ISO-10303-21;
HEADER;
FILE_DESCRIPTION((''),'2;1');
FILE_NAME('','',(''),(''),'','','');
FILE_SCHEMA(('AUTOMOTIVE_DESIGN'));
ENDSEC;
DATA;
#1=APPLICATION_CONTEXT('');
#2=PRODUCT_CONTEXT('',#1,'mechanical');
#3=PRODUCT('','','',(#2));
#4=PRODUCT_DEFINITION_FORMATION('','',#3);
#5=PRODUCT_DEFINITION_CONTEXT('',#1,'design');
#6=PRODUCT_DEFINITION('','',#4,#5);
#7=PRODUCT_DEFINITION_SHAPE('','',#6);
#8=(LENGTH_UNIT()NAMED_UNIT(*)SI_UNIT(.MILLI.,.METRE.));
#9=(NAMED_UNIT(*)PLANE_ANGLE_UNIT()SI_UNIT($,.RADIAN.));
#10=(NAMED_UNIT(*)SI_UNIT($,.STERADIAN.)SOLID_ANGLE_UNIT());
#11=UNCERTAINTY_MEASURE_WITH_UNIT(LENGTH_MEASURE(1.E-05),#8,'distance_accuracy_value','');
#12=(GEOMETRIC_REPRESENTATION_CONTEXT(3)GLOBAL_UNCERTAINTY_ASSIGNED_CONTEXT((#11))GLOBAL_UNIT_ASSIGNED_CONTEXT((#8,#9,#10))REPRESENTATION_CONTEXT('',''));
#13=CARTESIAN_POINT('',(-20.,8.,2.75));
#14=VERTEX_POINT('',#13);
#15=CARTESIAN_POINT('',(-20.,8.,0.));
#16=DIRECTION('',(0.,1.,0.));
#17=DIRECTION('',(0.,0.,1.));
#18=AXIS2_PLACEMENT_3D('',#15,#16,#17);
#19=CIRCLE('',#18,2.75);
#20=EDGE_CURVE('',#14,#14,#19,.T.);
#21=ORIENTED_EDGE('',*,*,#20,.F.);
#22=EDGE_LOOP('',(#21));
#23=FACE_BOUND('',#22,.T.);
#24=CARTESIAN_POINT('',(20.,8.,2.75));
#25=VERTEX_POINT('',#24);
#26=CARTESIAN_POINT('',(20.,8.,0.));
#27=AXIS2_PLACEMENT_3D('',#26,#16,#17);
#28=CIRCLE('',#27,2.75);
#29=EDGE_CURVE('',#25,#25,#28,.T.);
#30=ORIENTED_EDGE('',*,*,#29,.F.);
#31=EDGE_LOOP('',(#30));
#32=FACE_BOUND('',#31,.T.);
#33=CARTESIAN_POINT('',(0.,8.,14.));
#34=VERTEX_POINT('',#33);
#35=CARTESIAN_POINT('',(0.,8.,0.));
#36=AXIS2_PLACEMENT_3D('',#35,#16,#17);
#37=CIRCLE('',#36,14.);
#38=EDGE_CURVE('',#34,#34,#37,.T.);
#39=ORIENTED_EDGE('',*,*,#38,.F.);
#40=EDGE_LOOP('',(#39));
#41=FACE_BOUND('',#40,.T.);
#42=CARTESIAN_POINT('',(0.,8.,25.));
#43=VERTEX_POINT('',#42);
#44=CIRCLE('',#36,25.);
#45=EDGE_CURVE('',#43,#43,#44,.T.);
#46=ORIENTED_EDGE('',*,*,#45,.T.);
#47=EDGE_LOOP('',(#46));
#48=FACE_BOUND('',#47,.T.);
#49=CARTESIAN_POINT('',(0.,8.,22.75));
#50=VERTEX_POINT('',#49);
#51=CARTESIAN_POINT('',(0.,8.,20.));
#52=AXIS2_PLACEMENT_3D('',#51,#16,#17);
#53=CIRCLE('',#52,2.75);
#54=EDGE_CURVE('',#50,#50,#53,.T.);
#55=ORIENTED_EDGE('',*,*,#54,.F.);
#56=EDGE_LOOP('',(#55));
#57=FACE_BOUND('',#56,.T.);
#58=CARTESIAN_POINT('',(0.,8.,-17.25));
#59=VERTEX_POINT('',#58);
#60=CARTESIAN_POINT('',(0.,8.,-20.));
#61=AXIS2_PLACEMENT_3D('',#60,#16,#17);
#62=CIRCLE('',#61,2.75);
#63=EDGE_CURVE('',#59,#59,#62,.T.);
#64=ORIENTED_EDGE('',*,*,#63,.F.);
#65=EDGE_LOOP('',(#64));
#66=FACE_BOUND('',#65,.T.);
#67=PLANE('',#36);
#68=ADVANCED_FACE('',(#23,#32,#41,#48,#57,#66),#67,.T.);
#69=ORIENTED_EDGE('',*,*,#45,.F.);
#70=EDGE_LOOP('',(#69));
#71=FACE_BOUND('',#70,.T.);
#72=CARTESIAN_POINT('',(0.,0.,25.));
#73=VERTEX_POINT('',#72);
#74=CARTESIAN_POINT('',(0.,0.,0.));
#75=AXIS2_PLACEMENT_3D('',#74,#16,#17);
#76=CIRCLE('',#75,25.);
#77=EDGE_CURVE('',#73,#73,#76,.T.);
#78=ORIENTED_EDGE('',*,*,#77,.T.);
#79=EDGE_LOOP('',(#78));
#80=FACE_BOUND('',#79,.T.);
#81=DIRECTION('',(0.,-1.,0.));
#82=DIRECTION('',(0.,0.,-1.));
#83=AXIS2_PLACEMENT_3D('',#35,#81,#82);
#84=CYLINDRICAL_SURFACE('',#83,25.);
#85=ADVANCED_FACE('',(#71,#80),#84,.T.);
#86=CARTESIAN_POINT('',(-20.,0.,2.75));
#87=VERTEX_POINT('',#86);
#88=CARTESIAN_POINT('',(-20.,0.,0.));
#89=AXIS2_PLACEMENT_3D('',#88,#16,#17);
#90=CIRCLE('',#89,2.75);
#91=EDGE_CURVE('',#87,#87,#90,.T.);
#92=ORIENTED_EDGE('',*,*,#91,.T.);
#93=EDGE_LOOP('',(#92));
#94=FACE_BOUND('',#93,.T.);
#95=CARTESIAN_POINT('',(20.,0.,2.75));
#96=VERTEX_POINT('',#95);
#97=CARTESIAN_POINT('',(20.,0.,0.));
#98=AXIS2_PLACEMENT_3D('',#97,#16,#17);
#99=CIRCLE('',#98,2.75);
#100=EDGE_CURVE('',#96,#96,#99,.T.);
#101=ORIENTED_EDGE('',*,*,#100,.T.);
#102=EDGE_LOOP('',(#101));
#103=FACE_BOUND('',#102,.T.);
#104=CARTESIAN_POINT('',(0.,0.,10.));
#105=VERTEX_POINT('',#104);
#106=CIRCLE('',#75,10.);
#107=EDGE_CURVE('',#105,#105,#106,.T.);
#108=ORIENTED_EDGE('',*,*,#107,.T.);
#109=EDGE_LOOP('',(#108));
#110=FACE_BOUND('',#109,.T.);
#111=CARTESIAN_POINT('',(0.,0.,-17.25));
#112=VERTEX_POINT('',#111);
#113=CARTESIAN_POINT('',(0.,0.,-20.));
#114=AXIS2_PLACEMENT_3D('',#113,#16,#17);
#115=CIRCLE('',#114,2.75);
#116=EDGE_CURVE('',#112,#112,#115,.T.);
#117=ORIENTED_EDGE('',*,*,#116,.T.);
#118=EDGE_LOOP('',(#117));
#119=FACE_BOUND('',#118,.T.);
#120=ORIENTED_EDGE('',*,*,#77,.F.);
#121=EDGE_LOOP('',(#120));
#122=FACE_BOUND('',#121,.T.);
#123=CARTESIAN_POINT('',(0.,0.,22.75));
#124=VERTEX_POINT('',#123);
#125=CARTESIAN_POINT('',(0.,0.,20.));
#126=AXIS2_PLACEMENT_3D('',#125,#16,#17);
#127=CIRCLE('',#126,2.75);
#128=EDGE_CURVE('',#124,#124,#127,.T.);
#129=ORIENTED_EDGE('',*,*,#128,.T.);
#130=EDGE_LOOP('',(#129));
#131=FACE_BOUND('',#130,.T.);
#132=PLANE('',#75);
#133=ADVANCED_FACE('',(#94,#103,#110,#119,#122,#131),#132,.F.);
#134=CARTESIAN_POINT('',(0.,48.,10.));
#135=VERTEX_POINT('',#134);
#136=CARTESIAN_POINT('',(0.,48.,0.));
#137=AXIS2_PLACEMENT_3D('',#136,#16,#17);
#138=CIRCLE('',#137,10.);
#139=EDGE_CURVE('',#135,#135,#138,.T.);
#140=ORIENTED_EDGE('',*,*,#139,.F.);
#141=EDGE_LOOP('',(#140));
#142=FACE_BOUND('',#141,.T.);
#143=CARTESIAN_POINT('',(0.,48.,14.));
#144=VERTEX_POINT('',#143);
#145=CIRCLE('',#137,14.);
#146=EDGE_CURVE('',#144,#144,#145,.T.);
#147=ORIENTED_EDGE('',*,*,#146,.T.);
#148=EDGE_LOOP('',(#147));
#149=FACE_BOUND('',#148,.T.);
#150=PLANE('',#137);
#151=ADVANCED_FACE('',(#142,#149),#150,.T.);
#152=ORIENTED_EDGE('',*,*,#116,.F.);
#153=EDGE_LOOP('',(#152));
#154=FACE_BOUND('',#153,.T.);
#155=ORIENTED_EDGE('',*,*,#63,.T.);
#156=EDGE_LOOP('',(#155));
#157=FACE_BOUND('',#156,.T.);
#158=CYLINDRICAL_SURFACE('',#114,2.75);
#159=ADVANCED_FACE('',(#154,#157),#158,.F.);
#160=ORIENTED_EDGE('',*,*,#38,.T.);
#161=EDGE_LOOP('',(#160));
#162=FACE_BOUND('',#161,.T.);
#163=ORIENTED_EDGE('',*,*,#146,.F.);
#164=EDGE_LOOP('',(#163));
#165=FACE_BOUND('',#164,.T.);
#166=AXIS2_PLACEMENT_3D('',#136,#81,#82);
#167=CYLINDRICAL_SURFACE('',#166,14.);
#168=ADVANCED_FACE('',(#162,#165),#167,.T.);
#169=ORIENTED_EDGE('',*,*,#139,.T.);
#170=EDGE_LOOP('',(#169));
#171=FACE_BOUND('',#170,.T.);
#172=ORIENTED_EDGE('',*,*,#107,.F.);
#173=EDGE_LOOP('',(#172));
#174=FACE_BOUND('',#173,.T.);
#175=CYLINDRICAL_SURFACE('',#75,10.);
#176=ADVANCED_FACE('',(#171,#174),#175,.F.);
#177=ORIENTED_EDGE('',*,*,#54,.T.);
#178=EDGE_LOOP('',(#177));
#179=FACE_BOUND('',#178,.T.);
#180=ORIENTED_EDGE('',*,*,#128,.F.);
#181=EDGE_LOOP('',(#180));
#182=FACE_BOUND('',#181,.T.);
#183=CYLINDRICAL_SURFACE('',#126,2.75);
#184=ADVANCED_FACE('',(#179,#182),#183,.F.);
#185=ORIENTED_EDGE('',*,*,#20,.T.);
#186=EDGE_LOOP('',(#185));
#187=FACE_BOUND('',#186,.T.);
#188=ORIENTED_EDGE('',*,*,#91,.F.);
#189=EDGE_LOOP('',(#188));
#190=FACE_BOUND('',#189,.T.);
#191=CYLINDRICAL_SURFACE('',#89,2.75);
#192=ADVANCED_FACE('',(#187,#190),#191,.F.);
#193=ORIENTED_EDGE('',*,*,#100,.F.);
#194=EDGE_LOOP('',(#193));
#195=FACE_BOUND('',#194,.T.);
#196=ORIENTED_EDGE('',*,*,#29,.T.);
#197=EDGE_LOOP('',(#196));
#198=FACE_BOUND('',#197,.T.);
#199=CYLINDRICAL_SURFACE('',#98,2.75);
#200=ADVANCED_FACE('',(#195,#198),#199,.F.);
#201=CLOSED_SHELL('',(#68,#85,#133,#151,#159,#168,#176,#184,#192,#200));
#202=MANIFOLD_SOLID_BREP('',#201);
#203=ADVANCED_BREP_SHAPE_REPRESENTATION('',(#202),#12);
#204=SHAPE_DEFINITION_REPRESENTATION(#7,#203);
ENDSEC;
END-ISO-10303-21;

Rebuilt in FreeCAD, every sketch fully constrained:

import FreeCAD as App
import Part
import Sketcher
from FreeCAD import Vector
Q = App.Units.Quantity

doc = App.newDocument("Part")
body = doc.addObject("PartDesign::Body", "Body")

sketch1 = body.newObject("Sketcher::SketchObject", "Sketch")
sketch1.AttachmentSupport = (doc.getObject("XZ_Plane"), [""])
sketch1.MapMode = "FlatFace"
sketch1.addGeometry(Part.Circle(Vector(0, 0, 0), Vector(0, 0, 1), 25), False)
sketch1.addConstraint(Sketcher.Constraint("Coincident", 0, 3, -1, 1))
sketch1.addConstraint(Sketcher.Constraint("Diameter", 0, Q("50 mm")))
pad1 = body.newObject("PartDesign::Pad", "Pad")
pad1.Profile = sketch1
pad1.Length = 8
pad1.Reversed = True

sketch2 = body.newObject("Sketcher::SketchObject", "Sketch001")
sketch2.AttachmentSupport = (doc.getObject("XZ_Plane"), [""])
sketch2.MapMode = "FlatFace"
sketch2.AttachmentOffset = App.Placement(Vector(0, 0, -8), App.Rotation())
sketch2.addGeometry(Part.Circle(Vector(0, 0, 0), Vector(0, 0, 1), 14), False)
sketch2.addConstraint(Sketcher.Constraint("Coincident", 0, 3, -1, 1))
sketch2.addConstraint(Sketcher.Constraint("Diameter", 0, Q("28 mm")))
pad2 = body.newObject("PartDesign::Pad", "Pad001")
pad2.Profile = sketch2
pad2.Length = 40
pad2.Reversed = True

sketch3 = body.newObject("Sketcher::SketchObject", "Sketch002")
sketch3.AttachmentSupport = (doc.getObject("XZ_Plane"), [""])
sketch3.MapMode = "FlatFace"
sketch3.AttachmentOffset = App.Placement(Vector(0, 0, -48), App.Rotation())
sketch3.addGeometry(Part.Circle(Vector(0, 0, 0), Vector(0, 0, 1), 10), False)
sketch3.addConstraint(Sketcher.Constraint("Coincident", 0, 3, -1, 1))
sketch3.addConstraint(Sketcher.Constraint("Diameter", 0, Q("20 mm")))
pocket1 = body.newObject("PartDesign::Pocket", "Pocket")
pocket1.Profile = sketch3
pocket1.Type = "ThroughAll"
pocket1.Midplane = True

sketch4 = body.newObject("Sketcher::SketchObject", "Sketch003")
sketch4.AttachmentSupport = (doc.getObject("XZ_Plane"), [""])
sketch4.MapMode = "FlatFace"
sketch4.AttachmentOffset = App.Placement(Vector(0, 0, -8), App.Rotation())
sketch4.addGeometry(Part.Circle(Vector(0, -20, 0), Vector(0, 0, 1), 2.75), False)
sketch4.addGeometry(Part.Circle(Vector(20, 0, 0), Vector(0, 0, 1), 2.75), False)
sketch4.addGeometry(Part.Circle(Vector(0, 20, 0), Vector(0, 0, 1), 2.75), False)
sketch4.addGeometry(Part.Circle(Vector(-20, 0, 0), Vector(0, 0, 1), 2.75), False)
sketch4.addConstraint(Sketcher.Constraint("Equal", 0, 1))
sketch4.addConstraint(Sketcher.Constraint("Equal", 1, 2))
sketch4.addConstraint(Sketcher.Constraint("Equal", 2, 3))
sketch4.addConstraint(Sketcher.Constraint("Symmetric", 0, 3, 2, 3, -1, 1))
sketch4.addConstraint(Sketcher.Constraint("Symmetric", 1, 3, 3, 3, -1, 1))
sketch4.addConstraint(Sketcher.Constraint("PointOnObject", 0, 3, -2))
sketch4.addConstraint(Sketcher.Constraint("PointOnObject", 1, 3, -1))
sketch4.addConstraint(Sketcher.Constraint("Diameter", 0, Q("5.5 mm")))
sketch4.addConstraint(Sketcher.Constraint("DistanceY", 0, 3, -1, 1, Q("20 mm")))
sketch4.addConstraint(Sketcher.Constraint("DistanceX", -1, 1, 1, 3, Q("20 mm")))
pocket2 = body.newObject("PartDesign::Pocket", "Pocket001")
pocket2.Profile = sketch4
pocket2.Type = "ThroughAll"
pocket2.Midplane = True

doc.recompute()
